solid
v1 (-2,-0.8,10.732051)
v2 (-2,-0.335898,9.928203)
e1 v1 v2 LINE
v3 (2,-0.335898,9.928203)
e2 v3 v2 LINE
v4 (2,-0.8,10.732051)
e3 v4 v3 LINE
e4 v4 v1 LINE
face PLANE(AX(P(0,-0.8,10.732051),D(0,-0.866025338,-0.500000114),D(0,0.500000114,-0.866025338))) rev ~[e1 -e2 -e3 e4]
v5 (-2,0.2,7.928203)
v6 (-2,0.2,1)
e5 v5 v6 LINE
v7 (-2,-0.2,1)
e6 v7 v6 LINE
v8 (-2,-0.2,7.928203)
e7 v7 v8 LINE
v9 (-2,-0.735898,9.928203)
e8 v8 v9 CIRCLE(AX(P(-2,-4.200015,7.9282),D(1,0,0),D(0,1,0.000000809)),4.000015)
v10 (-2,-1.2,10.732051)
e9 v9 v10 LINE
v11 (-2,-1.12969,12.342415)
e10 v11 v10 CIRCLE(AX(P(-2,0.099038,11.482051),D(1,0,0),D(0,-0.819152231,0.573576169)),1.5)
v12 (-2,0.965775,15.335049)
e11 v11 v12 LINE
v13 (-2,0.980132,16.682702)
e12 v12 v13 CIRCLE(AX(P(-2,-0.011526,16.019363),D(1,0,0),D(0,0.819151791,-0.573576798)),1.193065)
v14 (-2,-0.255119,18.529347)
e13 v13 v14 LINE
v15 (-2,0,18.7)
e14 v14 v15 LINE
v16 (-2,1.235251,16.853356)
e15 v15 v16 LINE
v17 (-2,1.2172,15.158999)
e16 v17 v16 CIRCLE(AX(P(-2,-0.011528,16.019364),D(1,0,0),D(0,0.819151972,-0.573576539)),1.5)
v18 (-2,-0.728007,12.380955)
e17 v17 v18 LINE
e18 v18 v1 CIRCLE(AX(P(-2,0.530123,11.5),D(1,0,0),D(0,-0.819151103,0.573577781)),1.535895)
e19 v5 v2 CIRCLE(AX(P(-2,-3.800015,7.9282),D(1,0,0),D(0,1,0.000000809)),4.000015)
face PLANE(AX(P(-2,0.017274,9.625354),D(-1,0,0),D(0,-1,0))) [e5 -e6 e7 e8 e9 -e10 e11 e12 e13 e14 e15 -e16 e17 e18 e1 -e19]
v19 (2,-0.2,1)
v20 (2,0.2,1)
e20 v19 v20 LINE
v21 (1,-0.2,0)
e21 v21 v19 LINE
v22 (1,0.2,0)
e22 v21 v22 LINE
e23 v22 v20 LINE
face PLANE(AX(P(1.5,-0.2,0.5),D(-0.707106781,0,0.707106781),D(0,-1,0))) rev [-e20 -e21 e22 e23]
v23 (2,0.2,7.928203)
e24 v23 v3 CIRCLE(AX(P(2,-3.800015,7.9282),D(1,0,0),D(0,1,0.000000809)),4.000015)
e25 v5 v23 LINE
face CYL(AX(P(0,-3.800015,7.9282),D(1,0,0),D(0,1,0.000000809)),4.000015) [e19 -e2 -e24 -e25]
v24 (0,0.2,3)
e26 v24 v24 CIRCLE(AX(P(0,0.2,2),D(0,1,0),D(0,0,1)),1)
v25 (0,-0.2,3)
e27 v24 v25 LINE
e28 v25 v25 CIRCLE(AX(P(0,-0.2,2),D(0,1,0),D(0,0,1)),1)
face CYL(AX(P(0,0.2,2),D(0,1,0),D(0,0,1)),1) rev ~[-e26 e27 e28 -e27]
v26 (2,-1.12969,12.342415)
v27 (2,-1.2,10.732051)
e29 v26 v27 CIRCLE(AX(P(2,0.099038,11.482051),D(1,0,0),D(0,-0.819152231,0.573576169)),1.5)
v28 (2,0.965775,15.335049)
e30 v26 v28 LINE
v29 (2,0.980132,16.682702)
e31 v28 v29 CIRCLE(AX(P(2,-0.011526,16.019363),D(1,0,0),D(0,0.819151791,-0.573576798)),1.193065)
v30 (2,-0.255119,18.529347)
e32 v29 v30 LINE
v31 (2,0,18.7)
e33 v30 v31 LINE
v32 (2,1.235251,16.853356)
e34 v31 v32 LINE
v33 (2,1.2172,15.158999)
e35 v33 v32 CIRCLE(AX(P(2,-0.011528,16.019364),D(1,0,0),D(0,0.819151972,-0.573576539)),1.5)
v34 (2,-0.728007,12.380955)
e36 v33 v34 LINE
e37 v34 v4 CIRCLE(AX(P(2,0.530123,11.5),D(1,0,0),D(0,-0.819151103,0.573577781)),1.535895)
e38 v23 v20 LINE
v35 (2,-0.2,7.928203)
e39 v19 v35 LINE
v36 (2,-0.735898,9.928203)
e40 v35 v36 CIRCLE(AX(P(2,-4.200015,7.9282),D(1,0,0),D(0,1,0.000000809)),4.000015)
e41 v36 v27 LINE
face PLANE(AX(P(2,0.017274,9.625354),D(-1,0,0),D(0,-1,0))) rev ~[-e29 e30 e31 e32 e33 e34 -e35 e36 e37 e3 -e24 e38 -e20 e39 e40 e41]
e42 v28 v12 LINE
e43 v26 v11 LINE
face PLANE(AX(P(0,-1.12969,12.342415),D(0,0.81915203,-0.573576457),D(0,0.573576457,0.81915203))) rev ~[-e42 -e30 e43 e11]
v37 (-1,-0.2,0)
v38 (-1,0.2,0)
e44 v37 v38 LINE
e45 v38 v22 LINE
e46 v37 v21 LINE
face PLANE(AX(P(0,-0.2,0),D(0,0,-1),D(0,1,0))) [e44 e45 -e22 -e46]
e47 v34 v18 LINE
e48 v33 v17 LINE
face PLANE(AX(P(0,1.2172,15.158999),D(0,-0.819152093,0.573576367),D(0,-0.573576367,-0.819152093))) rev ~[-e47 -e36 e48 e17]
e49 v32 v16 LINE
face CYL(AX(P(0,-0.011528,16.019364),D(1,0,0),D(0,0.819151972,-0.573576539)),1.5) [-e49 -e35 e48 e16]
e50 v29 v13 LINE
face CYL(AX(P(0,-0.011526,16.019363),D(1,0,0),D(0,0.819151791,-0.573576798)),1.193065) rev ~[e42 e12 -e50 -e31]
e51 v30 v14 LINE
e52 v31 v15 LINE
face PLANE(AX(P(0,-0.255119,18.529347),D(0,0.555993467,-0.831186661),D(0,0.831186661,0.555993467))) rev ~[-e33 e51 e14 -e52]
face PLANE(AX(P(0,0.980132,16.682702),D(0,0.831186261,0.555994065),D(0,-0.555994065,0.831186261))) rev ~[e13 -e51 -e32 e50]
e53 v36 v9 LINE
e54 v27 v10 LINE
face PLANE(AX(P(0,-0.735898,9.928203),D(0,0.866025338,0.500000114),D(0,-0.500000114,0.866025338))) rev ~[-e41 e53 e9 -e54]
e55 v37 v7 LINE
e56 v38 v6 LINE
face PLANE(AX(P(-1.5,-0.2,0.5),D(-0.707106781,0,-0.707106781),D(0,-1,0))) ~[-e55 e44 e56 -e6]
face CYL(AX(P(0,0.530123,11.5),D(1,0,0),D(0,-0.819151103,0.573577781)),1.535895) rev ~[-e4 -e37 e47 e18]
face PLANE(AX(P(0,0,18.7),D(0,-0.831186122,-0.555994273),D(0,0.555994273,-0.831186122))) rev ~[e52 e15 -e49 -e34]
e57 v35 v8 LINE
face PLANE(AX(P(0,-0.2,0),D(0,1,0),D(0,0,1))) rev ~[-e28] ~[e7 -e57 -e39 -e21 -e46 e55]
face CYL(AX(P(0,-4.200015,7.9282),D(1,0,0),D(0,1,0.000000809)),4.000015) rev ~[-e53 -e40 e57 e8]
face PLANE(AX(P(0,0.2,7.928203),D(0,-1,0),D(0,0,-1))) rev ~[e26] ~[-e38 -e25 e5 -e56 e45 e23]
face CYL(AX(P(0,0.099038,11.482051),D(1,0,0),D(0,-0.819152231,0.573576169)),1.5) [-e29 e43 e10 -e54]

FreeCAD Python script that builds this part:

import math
import FreeCAD as App
import Part
import Sketcher
from FreeCAD import Vector
Q = App.Units.Quantity


def edges_at(feature, points):
    """Names of the edges that pass closest to the given points."""
    edges = feature.Shape.Edges
    near = lambda p: min(range(len(edges)), key=lambda i: edges[i].distToShape(Part.Vertex(*p))[0])
    return sorted({f"Edge{near(p) + 1}" for p in points})

doc = App.newDocument("Part")
body = doc.addObject("PartDesign::Body", "Body")

# Sketch on YZ plane
sketch1 = body.newObject("Sketcher::SketchObject", "Sketch")
sketch1.AttachmentSupport = (doc.getObject("YZ_Plane"), [""])
sketch1.MapMode = "FlatFace"
sketch1.addGeometry([
    Part.LineSegment(Vector(-0.2, 7.928203, 0), Vector(-0.2, 0, 0)),  # 0
    Part.LineSegment(Vector(-0.2, 0, 0), Vector(0.2, 0, 0)),  # 1
    Part.LineSegment(Vector(0.2, 0, 0), Vector(0.2, 7.928203, 0)),  # 2
    Part.ArcOfCircle(Part.Circle(Vector(-3.800015, 7.9282, 0), Vector(0, 0, 1), 4.000015), math.radians(0.000046), math.radians(29.999933)),  # 3
    Part.LineSegment(Vector(-0.335898, 9.928203, 0), Vector(-0.8, 10.732051, 0)),  # 4
    Part.ArcOfCircle(Part.Circle(Vector(0.530123, 11.5, 0), Vector(0, 0, 1), 1.535895), math.radians(144.999906), math.radians(210.000073)),  # 5
    Part.LineSegment(Vector(-0.728007, 12.380955, 0), Vector(1.2172, 15.158999, 0)),  # 6
    Part.ArcOfCircle(Part.Circle(Vector(-0.011528, 16.019364, 0), Vector(0, 0, 1), 1.5), math.radians(-35.000007), math.radians(33.779241)),  # 7
    Part.LineSegment(Vector(1.235251, 16.853356, 0), Vector(0, 18.7, 0)),  # 8
    Part.LineSegment(Vector(0, 18.7, 0), Vector(-0.255119, 18.529347, 0)),  # 9
    Part.LineSegment(Vector(-0.255119, 18.529347, 0), Vector(0.980132, 16.682702, 0)),  # 10
    Part.ArcOfCircle(Part.Circle(Vector(-0.011526, 16.019363, 0), Vector(0, 0, 1), 1.193065), math.radians(-35.000025), math.radians(33.779289)),  # 11
    Part.LineSegment(Vector(0.965775, 15.335049, 0), Vector(-1.12969, 12.342415, 0)),  # 12
    Part.ArcOfCircle(Part.Circle(Vector(0.099038, 11.482051, 0), Vector(0, 0, 1), 1.5), math.radians(145.000019), math.radians(209.999982)),  # 13
    Part.LineSegment(Vector(-1.2, 10.732051, 0), Vector(-0.735898, 9.928203, 0)),  # 14
    Part.ArcOfCircle(Part.Circle(Vector(-4.200015, 7.9282, 0), Vector(0, 0, 1), 4.000015), math.radians(0.000046), math.radians(29.999933)),  # 15
], False)
sketch1.addConstraint([
    Sketcher.Constraint("Coincident", 0, 2, 1, 1),
    Sketcher.Constraint("Coincident", 1, 2, 2, 1),
    Sketcher.Constraint("Tangent", 2, 2, 3, 1),
    Sketcher.Constraint("Tangent", 3, 2, 4, 1),
    Sketcher.Constraint("Tangent", 4, 2, 5, 2),
    Sketcher.Constraint("Tangent", 5, 1, 6, 1),
    Sketcher.Constraint("Tangent", 6, 2, 7, 1),
    Sketcher.Constraint("Tangent", 7, 2, 8, 1),
    Sketcher.Constraint("Coincident", 8, 2, 9, 1),
    Sketcher.Constraint("Coincident", 9, 2, 10, 1),
    Sketcher.Constraint("Tangent", 10, 2, 11, 2),
    Sketcher.Constraint("Tangent", 11, 1, 12, 1),
    Sketcher.Constraint("Tangent", 12, 2, 13, 1),
    Sketcher.Constraint("Tangent", 13, 2, 14, 1),
    Sketcher.Constraint("Tangent", 14, 2, 15, 2),
    Sketcher.Constraint("Tangent", 15, 1, 0, 1),
    Sketcher.Constraint("Vertical", 0),
    Sketcher.Constraint("Horizontal", 1),
    Sketcher.Constraint("Vertical", 2),
    Sketcher.Constraint("Coincident", 11, 3, 7, 3),
    Sketcher.Constraint("Equal", 7, 13),
    Sketcher.Constraint("Equal", 3, 15),
    Sketcher.Constraint("Symmetric", 0, 2, 1, 2, -1, 1),
    Sketcher.Constraint("PointOnObject", 8, 2, -2),
    Sketcher.Constraint("Perpendicular", 8, 9),
    Sketcher.Constraint("Perpendicular", 9, 10),
    Sketcher.Constraint("Parallel", 6, 12),
    Sketcher.Constraint("Parallel", 4, 14),
    Sketcher.Constraint("Horizontal", 3, 3, 15, 3),
    Sketcher.Constraint("Horizontal", 4, 2, 13, 2),
    Sketcher.Constraint("Radius", 7, Q("1.5 mm")),
    Sketcher.Constraint("Angle", 4, Q("120.000008 deg")),
    Sketcher.Constraint("Angle", 6, Q("55.000005 deg")),
    Sketcher.Constraint("DistanceX", 1, 1, 1, 2, Q("0.4 mm")),
    Sketcher.Constraint("DistanceY", 2, 2, 3, 2, Q("2 mm")),
    Sketcher.Constraint("DistanceX", 4, 2, 2, 2, Q("1 mm")),
    Sketcher.Constraint("DistanceY", -1, 1, 5, 3, Q("11.5 mm")),
    Sketcher.Constraint("DistanceY", -1, 1, 8, 2, Q("18.7 mm")),
    Sketcher.Constraint("DistanceY", -1, 1, 6, 2, Q("15.158999 mm")),
    Sketcher.Constraint("Radius", 5, Q("1.535895 mm")),
])
pad1 = body.newObject("PartDesign::Pad", "Pad")
pad1.Profile = sketch1
pad1.Length = 4
pad1.Midplane = True

# Sketch on XZ plane
sketch2 = body.newObject("Sketcher::SketchObject", "Sketch001")
sketch2.AttachmentSupport = (doc.getObject("XZ_Plane"), [""])
sketch2.MapMode = "FlatFace"
sketch2.AttachmentOffset = App.Placement(Vector(0, 0, -0.2), App.Rotation())
sketch2.addGeometry(Part.Circle(Vector(0, 2, 0), Vector(0, 0, 1), 1), False)
sketch2.addConstraint([
    Sketcher.Constraint("PointOnObject", 0, 3, -2),
    Sketcher.Constraint("Diameter", 0, Q("2 mm")),
    Sketcher.Constraint("DistanceY", -1, 1, 0, 3, Q("2 mm")),
])
pocket1 = body.newObject("PartDesign::Pocket", "Pocket")
pocket1.Profile = sketch2
pocket1.Length = 5
pocket1.Reversed = True
doc.recompute()

chamfer = body.newObject("PartDesign::Chamfer", "Chamfer")
chamfer.Base = (pocket1, edges_at(pocket1, [(2, 0, 0), (-2, 0, 0)]))
chamfer.Size = 1

doc.recompute()
